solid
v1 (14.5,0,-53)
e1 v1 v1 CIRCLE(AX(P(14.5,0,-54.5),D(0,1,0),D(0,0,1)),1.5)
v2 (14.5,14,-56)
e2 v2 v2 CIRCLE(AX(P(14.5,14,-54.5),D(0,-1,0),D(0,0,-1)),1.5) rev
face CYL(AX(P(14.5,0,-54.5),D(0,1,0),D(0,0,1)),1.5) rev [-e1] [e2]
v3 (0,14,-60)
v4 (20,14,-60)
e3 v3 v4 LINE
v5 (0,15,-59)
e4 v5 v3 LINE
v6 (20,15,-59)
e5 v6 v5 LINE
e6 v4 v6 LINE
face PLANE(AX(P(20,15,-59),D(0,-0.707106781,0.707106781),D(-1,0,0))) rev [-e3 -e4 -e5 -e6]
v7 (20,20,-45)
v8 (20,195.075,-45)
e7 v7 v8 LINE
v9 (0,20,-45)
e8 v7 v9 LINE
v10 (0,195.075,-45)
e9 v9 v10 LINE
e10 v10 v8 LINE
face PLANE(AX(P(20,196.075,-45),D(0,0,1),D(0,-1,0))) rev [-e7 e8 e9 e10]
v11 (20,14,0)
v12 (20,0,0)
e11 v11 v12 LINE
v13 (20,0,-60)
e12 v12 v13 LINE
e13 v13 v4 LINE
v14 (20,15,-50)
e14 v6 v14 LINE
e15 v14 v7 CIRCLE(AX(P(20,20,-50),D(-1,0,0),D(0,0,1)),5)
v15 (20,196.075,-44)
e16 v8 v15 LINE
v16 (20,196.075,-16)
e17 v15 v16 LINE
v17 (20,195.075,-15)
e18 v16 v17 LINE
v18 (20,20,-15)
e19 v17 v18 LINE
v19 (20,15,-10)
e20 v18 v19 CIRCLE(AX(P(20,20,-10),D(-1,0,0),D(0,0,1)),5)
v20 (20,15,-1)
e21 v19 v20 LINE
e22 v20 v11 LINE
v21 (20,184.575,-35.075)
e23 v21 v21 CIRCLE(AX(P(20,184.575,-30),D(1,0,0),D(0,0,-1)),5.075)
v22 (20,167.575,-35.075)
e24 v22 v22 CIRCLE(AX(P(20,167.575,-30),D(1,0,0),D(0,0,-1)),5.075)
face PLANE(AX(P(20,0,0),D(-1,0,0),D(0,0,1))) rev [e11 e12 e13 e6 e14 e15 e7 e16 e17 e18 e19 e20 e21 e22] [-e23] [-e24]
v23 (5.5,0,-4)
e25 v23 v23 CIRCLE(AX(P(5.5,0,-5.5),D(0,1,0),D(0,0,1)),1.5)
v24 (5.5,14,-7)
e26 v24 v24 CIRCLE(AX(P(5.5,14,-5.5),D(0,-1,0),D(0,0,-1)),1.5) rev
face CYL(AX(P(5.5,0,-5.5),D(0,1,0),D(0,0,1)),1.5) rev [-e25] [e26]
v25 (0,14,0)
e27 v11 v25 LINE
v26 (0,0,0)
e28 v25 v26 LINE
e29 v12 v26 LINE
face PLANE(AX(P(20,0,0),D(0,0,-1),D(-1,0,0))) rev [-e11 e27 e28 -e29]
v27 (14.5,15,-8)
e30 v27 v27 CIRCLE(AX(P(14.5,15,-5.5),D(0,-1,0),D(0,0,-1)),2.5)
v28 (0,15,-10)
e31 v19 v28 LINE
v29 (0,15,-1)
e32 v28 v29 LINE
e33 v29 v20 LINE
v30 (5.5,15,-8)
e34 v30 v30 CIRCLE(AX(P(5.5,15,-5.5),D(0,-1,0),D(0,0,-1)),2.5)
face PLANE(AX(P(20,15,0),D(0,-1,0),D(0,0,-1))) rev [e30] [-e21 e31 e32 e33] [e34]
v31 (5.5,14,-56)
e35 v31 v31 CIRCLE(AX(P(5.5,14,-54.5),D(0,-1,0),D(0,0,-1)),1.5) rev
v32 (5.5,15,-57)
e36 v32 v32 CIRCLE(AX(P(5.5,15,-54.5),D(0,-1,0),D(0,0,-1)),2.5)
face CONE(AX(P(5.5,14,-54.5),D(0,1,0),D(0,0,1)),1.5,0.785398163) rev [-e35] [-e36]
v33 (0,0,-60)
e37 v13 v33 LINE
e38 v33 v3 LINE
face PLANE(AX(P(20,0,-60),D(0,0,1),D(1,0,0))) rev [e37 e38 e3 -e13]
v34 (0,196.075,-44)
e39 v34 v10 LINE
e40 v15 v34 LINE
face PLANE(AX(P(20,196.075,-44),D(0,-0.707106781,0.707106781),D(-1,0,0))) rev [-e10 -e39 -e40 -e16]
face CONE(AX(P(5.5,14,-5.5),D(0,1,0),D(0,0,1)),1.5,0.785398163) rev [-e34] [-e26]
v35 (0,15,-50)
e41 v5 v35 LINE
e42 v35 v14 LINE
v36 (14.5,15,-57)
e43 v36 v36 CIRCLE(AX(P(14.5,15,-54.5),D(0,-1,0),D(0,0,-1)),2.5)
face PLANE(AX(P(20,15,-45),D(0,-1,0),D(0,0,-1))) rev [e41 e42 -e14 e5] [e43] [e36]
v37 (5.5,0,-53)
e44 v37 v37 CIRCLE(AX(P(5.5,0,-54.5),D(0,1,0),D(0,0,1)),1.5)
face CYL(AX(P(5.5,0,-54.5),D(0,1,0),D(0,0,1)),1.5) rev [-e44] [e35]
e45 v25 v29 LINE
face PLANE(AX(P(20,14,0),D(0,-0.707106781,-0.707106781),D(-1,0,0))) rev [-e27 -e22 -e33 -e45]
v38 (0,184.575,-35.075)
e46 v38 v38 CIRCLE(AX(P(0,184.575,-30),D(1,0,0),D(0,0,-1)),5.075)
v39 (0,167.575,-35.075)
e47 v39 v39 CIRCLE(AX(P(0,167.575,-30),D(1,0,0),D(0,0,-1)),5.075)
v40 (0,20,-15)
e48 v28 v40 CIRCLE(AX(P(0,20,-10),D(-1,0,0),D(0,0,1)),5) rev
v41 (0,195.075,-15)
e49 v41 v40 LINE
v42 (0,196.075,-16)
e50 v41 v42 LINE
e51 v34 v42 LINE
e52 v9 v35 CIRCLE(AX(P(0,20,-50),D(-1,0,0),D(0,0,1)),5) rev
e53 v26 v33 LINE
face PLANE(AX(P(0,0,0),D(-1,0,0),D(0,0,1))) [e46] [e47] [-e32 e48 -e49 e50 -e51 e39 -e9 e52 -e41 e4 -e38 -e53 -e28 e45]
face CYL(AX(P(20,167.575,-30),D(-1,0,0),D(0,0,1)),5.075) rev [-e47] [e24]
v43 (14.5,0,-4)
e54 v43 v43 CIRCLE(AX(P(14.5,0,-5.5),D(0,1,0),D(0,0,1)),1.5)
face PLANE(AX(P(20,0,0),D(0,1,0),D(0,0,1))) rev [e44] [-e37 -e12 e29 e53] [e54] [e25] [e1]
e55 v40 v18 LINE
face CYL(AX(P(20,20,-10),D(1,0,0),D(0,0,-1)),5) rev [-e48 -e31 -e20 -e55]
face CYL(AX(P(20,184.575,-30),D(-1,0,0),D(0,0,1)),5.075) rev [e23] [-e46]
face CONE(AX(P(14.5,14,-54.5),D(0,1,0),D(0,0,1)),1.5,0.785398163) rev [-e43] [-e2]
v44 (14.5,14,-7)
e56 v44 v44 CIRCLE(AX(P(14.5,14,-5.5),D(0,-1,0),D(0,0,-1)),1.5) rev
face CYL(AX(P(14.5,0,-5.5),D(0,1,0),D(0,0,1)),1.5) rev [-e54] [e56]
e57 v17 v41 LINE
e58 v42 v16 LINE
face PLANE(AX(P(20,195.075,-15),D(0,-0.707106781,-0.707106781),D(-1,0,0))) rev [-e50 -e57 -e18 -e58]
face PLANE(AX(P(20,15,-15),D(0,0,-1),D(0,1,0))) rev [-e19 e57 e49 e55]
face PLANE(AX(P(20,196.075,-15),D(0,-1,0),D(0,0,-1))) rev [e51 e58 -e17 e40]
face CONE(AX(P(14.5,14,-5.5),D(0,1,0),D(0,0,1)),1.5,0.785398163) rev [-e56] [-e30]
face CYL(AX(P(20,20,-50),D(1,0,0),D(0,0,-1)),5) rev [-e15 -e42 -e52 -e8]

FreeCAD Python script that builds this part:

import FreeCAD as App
import Part
import Sketcher

V = App.Vector
Q = App.Units.Quantity


def edges_at(feature, points):
    """Names of the edges that pass closest to the given points."""
    edges = feature.Shape.Edges
    near = lambda p: min(range(len(edges)), key=lambda i: edges[i].distToShape(Part.Vertex(*p))[0])
    return sorted({f"Edge{near(p) + 1}" for p in points})

doc = App.newDocument("Part")
body = doc.addObject("PartDesign::Body", "Body")

# Sketch on YZ plane
sketch1 = doc.addObject("Sketcher::SketchObject", "Sketch")
body.addObject(sketch1)
sketch1.AttachmentSupport = (doc.YZ_Plane, [""])
sketch1.MapMode = "FlatFace"
sketch1.addGeometry(Part.LineSegment(V(0, 0, 0), V(0, -60, 0)), False)
sketch1.addGeometry(Part.LineSegment(V(0, -60, 0), V(15, -60, 0)), False)
sketch1.addGeometry(Part.LineSegment(V(15, -60, 0), V(15, -45, 0)), False)
sketch1.addGeometry(Part.LineSegment(V(15, -45, 0), V(196.075, -45, 0)), False)
sketch1.addGeometry(Part.LineSegment(V(196.075, -45, 0), V(196.075, -15, 0)), False)
sketch1.addGeometry(Part.LineSegment(V(196.075, -15, 0), V(15, -15, 0)), False)
sketch1.addGeometry(Part.LineSegment(V(15, -15, 0), V(15, 0, 0)), False)
sketch1.addGeometry(Part.LineSegment(V(15, 0, 0), V(0, 0, 0)), False)
sketch1.addGeometry(Part.Circle(V(167.575, -30, 0), V(0, 0, 1), 5.075), False)
sketch1.addGeometry(Part.Circle(V(184.575, -30, 0), V(0, 0, 1), 5.075), False)
sketch1.addConstraint(Sketcher.Constraint("Coincident", 0, 2, 1, 1))
sketch1.addConstraint(Sketcher.Constraint("Coincident", 1, 2, 2, 1))
sketch1.addConstraint(Sketcher.Constraint("Coincident", 2, 2, 3, 1))
sketch1.addConstraint(Sketcher.Constraint("Coincident", 3, 2, 4, 1))
sketch1.addConstraint(Sketcher.Constraint("Coincident", 4, 2, 5, 1))
sketch1.addConstraint(Sketcher.Constraint("Coincident", 5, 2, 6, 1))
sketch1.addConstraint(Sketcher.Constraint("Coincident", 6, 2, 7, 1))
sketch1.addConstraint(Sketcher.Constraint("Coincident", 7, 2, 0, 1))
sketch1.addConstraint(Sketcher.Constraint("Vertical", 0))
sketch1.addConstraint(Sketcher.Constraint("Horizontal", 1))
sketch1.addConstraint(Sketcher.Constraint("Vertical", 2))
sketch1.addConstraint(Sketcher.Constraint("Horizontal", 3))
sketch1.addConstraint(Sketcher.Constraint("Vertical", 4))
sketch1.addConstraint(Sketcher.Constraint("Horizontal", 5))
sketch1.addConstraint(Sketcher.Constraint("Vertical", 6))
sketch1.addConstraint(Sketcher.Constraint("Horizontal", 7))
sketch1.addConstraint(Sketcher.Constraint("Coincident", 7, 2, -1, 1))
sketch1.addConstraint(Sketcher.Constraint("Equal", 8, 9))
sketch1.addConstraint(Sketcher.Constraint("Horizontal", 8, 3, 9, 3))
sketch1.addConstraint(Sketcher.Constraint("Vertical", 2, 2, 5, 2))
sketch1.addConstraint(Sketcher.Constraint("Equal", 7, 2))
sketch1.addConstraint(Sketcher.Constraint("Equal", 2, 6))
sketch1.addConstraint(Sketcher.Constraint("Diameter", 8, Q("10.15 mm")))
sketch1.addConstraint(Sketcher.Constraint("DistanceX", 1, 1, 1, 2, Q("15 mm")))
sketch1.addConstraint(Sketcher.Constraint("DistanceY", 0, 2, 0, 1, Q("60 mm")))
sketch1.addConstraint(Sketcher.Constraint("DistanceY", 8, 3, -1, 1, Q("30 mm")))
sketch1.addConstraint(Sketcher.Constraint("DistanceX", 8, 3, 9, 3, Q("17 mm")))
sketch1.addConstraint(Sketcher.Constraint("DistanceX", 9, 3, 3, 2, Q("11.5 mm")))
sketch1.addConstraint(Sketcher.Constraint("DistanceX", 3, 1, 3, 2, Q("181.075 mm")))
pad1 = doc.addObject("PartDesign::Pad", "Pad")
body.addObject(pad1)
pad1.Profile = sketch1
pad1.Length = 20
doc.recompute()

chamfer = doc.addObject("PartDesign::Chamfer", "Chamfer")
body.addObject(chamfer)
chamfer.Base = (pad1, edges_at(pad1, [
    (10, 15, 0),
    (10, 196.075, -15),
    (10, 196.075, -45),
    (10, 15, -60),
]))
chamfer.Size = 1
doc.recompute()

fillet = doc.addObject("PartDesign::Fillet", "Fillet")
body.addObject(fillet)
fillet.Base = (chamfer, edges_at(chamfer, [(10, 15, -15), (10, 15, -45)]))
fillet.Radius = 5

# Sketch on XZ plane
sketch2 = doc.addObject("Sketcher::SketchObject", "Sketch001")
body.addObject(sketch2)
sketch2.AttachmentSupport = (doc.XZ_Plane, [""])
sketch2.MapMode = "FlatFace"
sketch2.AttachmentOffset = App.Placement(V(0, 0, -15), App.Rotation())
sketch2.addGeometry(Part.Circle(V(5.5, -54.5, 0), V(0, 0, 1), 1.5), False)
sketch2.addGeometry(Part.Circle(V(14.5, -54.5, 0), V(0, 0, 1), 1.5), False)
sketch2.addGeometry(Part.Circle(V(5.5, -5.5, 0), V(0, 0, 1), 1.5), False)
sketch2.addGeometry(Part.Circle(V(14.5, -5.5, 0), V(0, 0, 1), 1.5), False)
sketch2.addConstraint(Sketcher.Constraint("Equal", 0, 1))
sketch2.addConstraint(Sketcher.Constraint("Equal", 1, 2))
sketch2.addConstraint(Sketcher.Constraint("Equal", 2, 3))
sketch2.addConstraint(Sketcher.Constraint("Horizontal", 0, 3, 1, 3))
sketch2.addConstraint(Sketcher.Constraint("Horizontal", 2, 3, 3, 3))
sketch2.addConstraint(Sketcher.Constraint("Vertical", 0, 3, 2, 3))
sketch2.addConstraint(Sketcher.Constraint("Vertical", 1, 3, 3, 3))
sketch2.addConstraint(Sketcher.Constraint("Diameter", 0, Q("3 mm")))
sketch2.addConstraint(Sketcher.Constraint("DistanceX", 0, 3, 1, 3, Q("9 mm")))
sketch2.addConstraint(Sketcher.Constraint("DistanceY", 0, 3, 2, 3, Q("49 mm")))
sketch2.addConstraint(Sketcher.Constraint("DistanceX", -1, 1, 0, 3, Q("5.5 mm")))
sketch2.addConstraint(Sketcher.Constraint("DistanceY", 0, 3, -1, 1, Q("54.5 mm")))
pocket1 = doc.addObject("PartDesign::Pocket", "Pocket")
body.addObject(pocket1)
pocket1.Profile = sketch2
pocket1.Length = 15
pocket1.Reversed = True
doc.recompute()

chamfer2 = doc.addObject("PartDesign::Chamfer", "Chamfer001")
body.addObject(chamfer2)
chamfer2.Base = (pocket1, edges_at(pocket1, [
    (14.5, 15, -56),
    (5.5, 15, -7),
    (14.5, 15, -7),
    (5.5, 15, -56),
]))
chamfer2.Size = 1

doc.recompute()
